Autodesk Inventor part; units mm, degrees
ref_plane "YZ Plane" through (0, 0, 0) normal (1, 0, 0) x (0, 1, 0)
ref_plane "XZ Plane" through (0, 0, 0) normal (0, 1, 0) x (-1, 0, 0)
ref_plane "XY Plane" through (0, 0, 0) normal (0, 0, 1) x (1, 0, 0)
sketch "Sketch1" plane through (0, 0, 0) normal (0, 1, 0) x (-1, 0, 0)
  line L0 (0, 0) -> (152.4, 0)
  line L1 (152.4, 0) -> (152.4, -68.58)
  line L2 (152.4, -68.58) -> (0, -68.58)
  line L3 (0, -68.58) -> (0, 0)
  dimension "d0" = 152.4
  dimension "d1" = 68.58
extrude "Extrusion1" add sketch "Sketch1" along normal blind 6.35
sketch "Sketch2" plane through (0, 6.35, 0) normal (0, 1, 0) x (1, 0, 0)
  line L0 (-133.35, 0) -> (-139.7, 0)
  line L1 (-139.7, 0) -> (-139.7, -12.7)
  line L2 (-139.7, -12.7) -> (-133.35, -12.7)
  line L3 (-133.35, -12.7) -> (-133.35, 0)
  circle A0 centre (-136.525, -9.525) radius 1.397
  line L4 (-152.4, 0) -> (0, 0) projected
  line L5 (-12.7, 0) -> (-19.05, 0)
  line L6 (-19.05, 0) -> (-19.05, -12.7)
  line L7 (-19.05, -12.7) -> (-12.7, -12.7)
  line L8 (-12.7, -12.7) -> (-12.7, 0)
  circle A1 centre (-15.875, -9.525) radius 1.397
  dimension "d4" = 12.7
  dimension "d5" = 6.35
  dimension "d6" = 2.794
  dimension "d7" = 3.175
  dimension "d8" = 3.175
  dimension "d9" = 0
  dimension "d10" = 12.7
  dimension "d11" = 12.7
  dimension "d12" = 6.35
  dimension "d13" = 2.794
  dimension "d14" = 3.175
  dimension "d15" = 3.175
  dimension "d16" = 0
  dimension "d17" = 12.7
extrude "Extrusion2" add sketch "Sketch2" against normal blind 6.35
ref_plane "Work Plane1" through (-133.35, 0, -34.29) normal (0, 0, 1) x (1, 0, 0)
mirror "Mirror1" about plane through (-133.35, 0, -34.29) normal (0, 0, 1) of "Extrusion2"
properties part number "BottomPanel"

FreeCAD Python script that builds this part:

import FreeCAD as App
import Part
import Sketcher

V = App.Vector
Q = App.Units.Quantity


def add_polygon(sketch, points):
    """Adds a closed chain of lines whose ends are joined by coincident constraints."""
    first, n = sketch.GeometryCount, len(points)
    for a, b in zip(points, points[1:] + points[:1]):
        sketch.addGeometry(Part.LineSegment(App.Vector(*a, 0), App.Vector(*b, 0)), False)
    for i in range(n):
        sketch.addConstraint(Sketcher.Constraint("Coincident", first + i, 2, first + (i + 1) % n, 1))

doc = App.newDocument("Part")
body = doc.addObject("PartDesign::Body", "Body")

sketch1 = doc.addObject("Sketcher::SketchObject", "Sketch")
body.addObject(sketch1)
sketch1.AttachmentSupport = (doc.XZ_Plane, [""])
sketch1.MapMode = "FlatFace"
add_polygon(sketch1, [(-152, 0), (0, 0), (0, -69), (-152, -69)])
sketch1.addConstraint(Sketcher.Constraint("Horizontal", 0))
sketch1.addConstraint(Sketcher.Constraint("Vertical", 1))
sketch1.addConstraint(Sketcher.Constraint("Horizontal", 2))
sketch1.addConstraint(Sketcher.Constraint("Vertical", 3))
sketch1.addConstraint(Sketcher.Constraint("Coincident", 0, 2, -1, 1))
sketch1.addConstraint(Sketcher.Constraint("DistanceX", 0, 1, 0, 2, Q("6 in")))
sketch1.addConstraint(Sketcher.Constraint("DistanceY", 1, 2, 1, 1, Q("2.7 in")))
pad1 = doc.addObject("PartDesign::Pad", "Pad")
body.addObject(pad1)
pad1.Profile = sketch1
pad1.Length = Q("0.25 in")
pad1.Reversed = True

sketch2 = doc.addObject("Sketcher::SketchObject", "Sketch001")
body.addObject(sketch2)
sketch2.AttachmentSupport = (doc.XZ_Plane, [""])
sketch2.MapMode = "FlatFace"
sketch2.AttachmentOffset = App.Placement(V(0, 0, -0.25 * 25.4), App.Rotation())
add_polygon(sketch2, [(-133.3, 12.7), (-133.3, 0), (-139.7, 0), (-139.7, 12.7)])
sketch2.addGeometry(Part.Circle(V(-136.5, 9.5, 0), V(0, 0, 1), 1.4), False)
add_polygon(sketch2, [(-12.7, 0), (-19.1, 0), (-19.1, 12.7), (-12.7, 12.7)])
sketch2.addGeometry(Part.Circle(V(-15.9, 9.5, 0), V(0, 0, 1), 1.4), False)
sketch2.addConstraint(Sketcher.Constraint("Vertical", 0))
sketch2.addConstraint(Sketcher.Constraint("Horizontal", 1))
sketch2.addConstraint(Sketcher.Constraint("Vertical", 2))
sketch2.addConstraint(Sketcher.Constraint("Horizontal", 3))
sketch2.addConstraint(Sketcher.Constraint("Horizontal", 5))
sketch2.addConstraint(Sketcher.Constraint("Vertical", 6))
sketch2.addConstraint(Sketcher.Constraint("Horizontal", 7))
sketch2.addConstraint(Sketcher.Constraint("Vertical", 8))
sketch2.addConstraint(Sketcher.Constraint("Equal", 4, 9))
sketch2.addConstraint(Sketcher.Constraint("PointOnObject", 0, 2, -1))
sketch2.addConstraint(Sketcher.Constraint("PointOnObject", 5, 2, -1))
sketch2.addConstraint(Sketcher.Constraint("Horizontal", 4, 3, 9, 3))
sketch2.addConstraint(Sketcher.Constraint("Horizontal", 3, 2, 6, 2))
sketch2.addConstraint(Sketcher.Constraint("Equal", 3, 5))
sketch2.addConstraint(Sketcher.Constraint("Diameter", 4, Q("0.11 in")))
sketch2.addConstraint(Sketcher.Constraint("DistanceY", 0, 2, 0, 1, Q("0.5 in")))
sketch2.addConstraint(Sketcher.Constraint("DistanceX", 1, 2, 1, 1, Q("0.25 in")))
sketch2.addConstraint(Sketcher.Constraint("DistanceX", 7, 2, -1, 1, Q("0.5 in")))
sketch2.addConstraint(Sketcher.Constraint("DistanceX", 4, 3, 0, 2, Q("0.125 in")))
sketch2.addConstraint(Sketcher.Constraint("DistanceY", 4, 3, 2, 2, Q("0.125 in")))
sketch2.addConstraint(Sketcher.Constraint("DistanceX", 5, 2, 9, 3, Q("0.125 in")))
sketch2.addConstraint(Sketcher.Constraint("DistanceX", 1, 2, -1, 1, Q("5.5 in")))
pad2 = doc.addObject("PartDesign::Pad", "Pad001")
body.addObject(pad2)
pad2.Profile = sketch2
pad2.Length = Q("0.25 in")
doc.recompute()

datumplane = doc.addObject("PartDesign::Plane", "DatumPlane")
body.addObject(datumplane)
datumplane.AttachmentSupport = (doc.XY_Plane, [""])
datumplane.MapMode = "FlatFace"
datumplane.AttachmentOffset = App.Placement(V(0, 0, -1.35 * 25.4), App.Rotation())
mirrored = doc.addObject("PartDesign::Mirrored", "Mirrored")
body.addObject(mirrored)
mirrored.Originals = [pad2]
mirrored.MirrorPlane = (datumplane, [""])
body.Tip = mirrored

doc.recompute()
